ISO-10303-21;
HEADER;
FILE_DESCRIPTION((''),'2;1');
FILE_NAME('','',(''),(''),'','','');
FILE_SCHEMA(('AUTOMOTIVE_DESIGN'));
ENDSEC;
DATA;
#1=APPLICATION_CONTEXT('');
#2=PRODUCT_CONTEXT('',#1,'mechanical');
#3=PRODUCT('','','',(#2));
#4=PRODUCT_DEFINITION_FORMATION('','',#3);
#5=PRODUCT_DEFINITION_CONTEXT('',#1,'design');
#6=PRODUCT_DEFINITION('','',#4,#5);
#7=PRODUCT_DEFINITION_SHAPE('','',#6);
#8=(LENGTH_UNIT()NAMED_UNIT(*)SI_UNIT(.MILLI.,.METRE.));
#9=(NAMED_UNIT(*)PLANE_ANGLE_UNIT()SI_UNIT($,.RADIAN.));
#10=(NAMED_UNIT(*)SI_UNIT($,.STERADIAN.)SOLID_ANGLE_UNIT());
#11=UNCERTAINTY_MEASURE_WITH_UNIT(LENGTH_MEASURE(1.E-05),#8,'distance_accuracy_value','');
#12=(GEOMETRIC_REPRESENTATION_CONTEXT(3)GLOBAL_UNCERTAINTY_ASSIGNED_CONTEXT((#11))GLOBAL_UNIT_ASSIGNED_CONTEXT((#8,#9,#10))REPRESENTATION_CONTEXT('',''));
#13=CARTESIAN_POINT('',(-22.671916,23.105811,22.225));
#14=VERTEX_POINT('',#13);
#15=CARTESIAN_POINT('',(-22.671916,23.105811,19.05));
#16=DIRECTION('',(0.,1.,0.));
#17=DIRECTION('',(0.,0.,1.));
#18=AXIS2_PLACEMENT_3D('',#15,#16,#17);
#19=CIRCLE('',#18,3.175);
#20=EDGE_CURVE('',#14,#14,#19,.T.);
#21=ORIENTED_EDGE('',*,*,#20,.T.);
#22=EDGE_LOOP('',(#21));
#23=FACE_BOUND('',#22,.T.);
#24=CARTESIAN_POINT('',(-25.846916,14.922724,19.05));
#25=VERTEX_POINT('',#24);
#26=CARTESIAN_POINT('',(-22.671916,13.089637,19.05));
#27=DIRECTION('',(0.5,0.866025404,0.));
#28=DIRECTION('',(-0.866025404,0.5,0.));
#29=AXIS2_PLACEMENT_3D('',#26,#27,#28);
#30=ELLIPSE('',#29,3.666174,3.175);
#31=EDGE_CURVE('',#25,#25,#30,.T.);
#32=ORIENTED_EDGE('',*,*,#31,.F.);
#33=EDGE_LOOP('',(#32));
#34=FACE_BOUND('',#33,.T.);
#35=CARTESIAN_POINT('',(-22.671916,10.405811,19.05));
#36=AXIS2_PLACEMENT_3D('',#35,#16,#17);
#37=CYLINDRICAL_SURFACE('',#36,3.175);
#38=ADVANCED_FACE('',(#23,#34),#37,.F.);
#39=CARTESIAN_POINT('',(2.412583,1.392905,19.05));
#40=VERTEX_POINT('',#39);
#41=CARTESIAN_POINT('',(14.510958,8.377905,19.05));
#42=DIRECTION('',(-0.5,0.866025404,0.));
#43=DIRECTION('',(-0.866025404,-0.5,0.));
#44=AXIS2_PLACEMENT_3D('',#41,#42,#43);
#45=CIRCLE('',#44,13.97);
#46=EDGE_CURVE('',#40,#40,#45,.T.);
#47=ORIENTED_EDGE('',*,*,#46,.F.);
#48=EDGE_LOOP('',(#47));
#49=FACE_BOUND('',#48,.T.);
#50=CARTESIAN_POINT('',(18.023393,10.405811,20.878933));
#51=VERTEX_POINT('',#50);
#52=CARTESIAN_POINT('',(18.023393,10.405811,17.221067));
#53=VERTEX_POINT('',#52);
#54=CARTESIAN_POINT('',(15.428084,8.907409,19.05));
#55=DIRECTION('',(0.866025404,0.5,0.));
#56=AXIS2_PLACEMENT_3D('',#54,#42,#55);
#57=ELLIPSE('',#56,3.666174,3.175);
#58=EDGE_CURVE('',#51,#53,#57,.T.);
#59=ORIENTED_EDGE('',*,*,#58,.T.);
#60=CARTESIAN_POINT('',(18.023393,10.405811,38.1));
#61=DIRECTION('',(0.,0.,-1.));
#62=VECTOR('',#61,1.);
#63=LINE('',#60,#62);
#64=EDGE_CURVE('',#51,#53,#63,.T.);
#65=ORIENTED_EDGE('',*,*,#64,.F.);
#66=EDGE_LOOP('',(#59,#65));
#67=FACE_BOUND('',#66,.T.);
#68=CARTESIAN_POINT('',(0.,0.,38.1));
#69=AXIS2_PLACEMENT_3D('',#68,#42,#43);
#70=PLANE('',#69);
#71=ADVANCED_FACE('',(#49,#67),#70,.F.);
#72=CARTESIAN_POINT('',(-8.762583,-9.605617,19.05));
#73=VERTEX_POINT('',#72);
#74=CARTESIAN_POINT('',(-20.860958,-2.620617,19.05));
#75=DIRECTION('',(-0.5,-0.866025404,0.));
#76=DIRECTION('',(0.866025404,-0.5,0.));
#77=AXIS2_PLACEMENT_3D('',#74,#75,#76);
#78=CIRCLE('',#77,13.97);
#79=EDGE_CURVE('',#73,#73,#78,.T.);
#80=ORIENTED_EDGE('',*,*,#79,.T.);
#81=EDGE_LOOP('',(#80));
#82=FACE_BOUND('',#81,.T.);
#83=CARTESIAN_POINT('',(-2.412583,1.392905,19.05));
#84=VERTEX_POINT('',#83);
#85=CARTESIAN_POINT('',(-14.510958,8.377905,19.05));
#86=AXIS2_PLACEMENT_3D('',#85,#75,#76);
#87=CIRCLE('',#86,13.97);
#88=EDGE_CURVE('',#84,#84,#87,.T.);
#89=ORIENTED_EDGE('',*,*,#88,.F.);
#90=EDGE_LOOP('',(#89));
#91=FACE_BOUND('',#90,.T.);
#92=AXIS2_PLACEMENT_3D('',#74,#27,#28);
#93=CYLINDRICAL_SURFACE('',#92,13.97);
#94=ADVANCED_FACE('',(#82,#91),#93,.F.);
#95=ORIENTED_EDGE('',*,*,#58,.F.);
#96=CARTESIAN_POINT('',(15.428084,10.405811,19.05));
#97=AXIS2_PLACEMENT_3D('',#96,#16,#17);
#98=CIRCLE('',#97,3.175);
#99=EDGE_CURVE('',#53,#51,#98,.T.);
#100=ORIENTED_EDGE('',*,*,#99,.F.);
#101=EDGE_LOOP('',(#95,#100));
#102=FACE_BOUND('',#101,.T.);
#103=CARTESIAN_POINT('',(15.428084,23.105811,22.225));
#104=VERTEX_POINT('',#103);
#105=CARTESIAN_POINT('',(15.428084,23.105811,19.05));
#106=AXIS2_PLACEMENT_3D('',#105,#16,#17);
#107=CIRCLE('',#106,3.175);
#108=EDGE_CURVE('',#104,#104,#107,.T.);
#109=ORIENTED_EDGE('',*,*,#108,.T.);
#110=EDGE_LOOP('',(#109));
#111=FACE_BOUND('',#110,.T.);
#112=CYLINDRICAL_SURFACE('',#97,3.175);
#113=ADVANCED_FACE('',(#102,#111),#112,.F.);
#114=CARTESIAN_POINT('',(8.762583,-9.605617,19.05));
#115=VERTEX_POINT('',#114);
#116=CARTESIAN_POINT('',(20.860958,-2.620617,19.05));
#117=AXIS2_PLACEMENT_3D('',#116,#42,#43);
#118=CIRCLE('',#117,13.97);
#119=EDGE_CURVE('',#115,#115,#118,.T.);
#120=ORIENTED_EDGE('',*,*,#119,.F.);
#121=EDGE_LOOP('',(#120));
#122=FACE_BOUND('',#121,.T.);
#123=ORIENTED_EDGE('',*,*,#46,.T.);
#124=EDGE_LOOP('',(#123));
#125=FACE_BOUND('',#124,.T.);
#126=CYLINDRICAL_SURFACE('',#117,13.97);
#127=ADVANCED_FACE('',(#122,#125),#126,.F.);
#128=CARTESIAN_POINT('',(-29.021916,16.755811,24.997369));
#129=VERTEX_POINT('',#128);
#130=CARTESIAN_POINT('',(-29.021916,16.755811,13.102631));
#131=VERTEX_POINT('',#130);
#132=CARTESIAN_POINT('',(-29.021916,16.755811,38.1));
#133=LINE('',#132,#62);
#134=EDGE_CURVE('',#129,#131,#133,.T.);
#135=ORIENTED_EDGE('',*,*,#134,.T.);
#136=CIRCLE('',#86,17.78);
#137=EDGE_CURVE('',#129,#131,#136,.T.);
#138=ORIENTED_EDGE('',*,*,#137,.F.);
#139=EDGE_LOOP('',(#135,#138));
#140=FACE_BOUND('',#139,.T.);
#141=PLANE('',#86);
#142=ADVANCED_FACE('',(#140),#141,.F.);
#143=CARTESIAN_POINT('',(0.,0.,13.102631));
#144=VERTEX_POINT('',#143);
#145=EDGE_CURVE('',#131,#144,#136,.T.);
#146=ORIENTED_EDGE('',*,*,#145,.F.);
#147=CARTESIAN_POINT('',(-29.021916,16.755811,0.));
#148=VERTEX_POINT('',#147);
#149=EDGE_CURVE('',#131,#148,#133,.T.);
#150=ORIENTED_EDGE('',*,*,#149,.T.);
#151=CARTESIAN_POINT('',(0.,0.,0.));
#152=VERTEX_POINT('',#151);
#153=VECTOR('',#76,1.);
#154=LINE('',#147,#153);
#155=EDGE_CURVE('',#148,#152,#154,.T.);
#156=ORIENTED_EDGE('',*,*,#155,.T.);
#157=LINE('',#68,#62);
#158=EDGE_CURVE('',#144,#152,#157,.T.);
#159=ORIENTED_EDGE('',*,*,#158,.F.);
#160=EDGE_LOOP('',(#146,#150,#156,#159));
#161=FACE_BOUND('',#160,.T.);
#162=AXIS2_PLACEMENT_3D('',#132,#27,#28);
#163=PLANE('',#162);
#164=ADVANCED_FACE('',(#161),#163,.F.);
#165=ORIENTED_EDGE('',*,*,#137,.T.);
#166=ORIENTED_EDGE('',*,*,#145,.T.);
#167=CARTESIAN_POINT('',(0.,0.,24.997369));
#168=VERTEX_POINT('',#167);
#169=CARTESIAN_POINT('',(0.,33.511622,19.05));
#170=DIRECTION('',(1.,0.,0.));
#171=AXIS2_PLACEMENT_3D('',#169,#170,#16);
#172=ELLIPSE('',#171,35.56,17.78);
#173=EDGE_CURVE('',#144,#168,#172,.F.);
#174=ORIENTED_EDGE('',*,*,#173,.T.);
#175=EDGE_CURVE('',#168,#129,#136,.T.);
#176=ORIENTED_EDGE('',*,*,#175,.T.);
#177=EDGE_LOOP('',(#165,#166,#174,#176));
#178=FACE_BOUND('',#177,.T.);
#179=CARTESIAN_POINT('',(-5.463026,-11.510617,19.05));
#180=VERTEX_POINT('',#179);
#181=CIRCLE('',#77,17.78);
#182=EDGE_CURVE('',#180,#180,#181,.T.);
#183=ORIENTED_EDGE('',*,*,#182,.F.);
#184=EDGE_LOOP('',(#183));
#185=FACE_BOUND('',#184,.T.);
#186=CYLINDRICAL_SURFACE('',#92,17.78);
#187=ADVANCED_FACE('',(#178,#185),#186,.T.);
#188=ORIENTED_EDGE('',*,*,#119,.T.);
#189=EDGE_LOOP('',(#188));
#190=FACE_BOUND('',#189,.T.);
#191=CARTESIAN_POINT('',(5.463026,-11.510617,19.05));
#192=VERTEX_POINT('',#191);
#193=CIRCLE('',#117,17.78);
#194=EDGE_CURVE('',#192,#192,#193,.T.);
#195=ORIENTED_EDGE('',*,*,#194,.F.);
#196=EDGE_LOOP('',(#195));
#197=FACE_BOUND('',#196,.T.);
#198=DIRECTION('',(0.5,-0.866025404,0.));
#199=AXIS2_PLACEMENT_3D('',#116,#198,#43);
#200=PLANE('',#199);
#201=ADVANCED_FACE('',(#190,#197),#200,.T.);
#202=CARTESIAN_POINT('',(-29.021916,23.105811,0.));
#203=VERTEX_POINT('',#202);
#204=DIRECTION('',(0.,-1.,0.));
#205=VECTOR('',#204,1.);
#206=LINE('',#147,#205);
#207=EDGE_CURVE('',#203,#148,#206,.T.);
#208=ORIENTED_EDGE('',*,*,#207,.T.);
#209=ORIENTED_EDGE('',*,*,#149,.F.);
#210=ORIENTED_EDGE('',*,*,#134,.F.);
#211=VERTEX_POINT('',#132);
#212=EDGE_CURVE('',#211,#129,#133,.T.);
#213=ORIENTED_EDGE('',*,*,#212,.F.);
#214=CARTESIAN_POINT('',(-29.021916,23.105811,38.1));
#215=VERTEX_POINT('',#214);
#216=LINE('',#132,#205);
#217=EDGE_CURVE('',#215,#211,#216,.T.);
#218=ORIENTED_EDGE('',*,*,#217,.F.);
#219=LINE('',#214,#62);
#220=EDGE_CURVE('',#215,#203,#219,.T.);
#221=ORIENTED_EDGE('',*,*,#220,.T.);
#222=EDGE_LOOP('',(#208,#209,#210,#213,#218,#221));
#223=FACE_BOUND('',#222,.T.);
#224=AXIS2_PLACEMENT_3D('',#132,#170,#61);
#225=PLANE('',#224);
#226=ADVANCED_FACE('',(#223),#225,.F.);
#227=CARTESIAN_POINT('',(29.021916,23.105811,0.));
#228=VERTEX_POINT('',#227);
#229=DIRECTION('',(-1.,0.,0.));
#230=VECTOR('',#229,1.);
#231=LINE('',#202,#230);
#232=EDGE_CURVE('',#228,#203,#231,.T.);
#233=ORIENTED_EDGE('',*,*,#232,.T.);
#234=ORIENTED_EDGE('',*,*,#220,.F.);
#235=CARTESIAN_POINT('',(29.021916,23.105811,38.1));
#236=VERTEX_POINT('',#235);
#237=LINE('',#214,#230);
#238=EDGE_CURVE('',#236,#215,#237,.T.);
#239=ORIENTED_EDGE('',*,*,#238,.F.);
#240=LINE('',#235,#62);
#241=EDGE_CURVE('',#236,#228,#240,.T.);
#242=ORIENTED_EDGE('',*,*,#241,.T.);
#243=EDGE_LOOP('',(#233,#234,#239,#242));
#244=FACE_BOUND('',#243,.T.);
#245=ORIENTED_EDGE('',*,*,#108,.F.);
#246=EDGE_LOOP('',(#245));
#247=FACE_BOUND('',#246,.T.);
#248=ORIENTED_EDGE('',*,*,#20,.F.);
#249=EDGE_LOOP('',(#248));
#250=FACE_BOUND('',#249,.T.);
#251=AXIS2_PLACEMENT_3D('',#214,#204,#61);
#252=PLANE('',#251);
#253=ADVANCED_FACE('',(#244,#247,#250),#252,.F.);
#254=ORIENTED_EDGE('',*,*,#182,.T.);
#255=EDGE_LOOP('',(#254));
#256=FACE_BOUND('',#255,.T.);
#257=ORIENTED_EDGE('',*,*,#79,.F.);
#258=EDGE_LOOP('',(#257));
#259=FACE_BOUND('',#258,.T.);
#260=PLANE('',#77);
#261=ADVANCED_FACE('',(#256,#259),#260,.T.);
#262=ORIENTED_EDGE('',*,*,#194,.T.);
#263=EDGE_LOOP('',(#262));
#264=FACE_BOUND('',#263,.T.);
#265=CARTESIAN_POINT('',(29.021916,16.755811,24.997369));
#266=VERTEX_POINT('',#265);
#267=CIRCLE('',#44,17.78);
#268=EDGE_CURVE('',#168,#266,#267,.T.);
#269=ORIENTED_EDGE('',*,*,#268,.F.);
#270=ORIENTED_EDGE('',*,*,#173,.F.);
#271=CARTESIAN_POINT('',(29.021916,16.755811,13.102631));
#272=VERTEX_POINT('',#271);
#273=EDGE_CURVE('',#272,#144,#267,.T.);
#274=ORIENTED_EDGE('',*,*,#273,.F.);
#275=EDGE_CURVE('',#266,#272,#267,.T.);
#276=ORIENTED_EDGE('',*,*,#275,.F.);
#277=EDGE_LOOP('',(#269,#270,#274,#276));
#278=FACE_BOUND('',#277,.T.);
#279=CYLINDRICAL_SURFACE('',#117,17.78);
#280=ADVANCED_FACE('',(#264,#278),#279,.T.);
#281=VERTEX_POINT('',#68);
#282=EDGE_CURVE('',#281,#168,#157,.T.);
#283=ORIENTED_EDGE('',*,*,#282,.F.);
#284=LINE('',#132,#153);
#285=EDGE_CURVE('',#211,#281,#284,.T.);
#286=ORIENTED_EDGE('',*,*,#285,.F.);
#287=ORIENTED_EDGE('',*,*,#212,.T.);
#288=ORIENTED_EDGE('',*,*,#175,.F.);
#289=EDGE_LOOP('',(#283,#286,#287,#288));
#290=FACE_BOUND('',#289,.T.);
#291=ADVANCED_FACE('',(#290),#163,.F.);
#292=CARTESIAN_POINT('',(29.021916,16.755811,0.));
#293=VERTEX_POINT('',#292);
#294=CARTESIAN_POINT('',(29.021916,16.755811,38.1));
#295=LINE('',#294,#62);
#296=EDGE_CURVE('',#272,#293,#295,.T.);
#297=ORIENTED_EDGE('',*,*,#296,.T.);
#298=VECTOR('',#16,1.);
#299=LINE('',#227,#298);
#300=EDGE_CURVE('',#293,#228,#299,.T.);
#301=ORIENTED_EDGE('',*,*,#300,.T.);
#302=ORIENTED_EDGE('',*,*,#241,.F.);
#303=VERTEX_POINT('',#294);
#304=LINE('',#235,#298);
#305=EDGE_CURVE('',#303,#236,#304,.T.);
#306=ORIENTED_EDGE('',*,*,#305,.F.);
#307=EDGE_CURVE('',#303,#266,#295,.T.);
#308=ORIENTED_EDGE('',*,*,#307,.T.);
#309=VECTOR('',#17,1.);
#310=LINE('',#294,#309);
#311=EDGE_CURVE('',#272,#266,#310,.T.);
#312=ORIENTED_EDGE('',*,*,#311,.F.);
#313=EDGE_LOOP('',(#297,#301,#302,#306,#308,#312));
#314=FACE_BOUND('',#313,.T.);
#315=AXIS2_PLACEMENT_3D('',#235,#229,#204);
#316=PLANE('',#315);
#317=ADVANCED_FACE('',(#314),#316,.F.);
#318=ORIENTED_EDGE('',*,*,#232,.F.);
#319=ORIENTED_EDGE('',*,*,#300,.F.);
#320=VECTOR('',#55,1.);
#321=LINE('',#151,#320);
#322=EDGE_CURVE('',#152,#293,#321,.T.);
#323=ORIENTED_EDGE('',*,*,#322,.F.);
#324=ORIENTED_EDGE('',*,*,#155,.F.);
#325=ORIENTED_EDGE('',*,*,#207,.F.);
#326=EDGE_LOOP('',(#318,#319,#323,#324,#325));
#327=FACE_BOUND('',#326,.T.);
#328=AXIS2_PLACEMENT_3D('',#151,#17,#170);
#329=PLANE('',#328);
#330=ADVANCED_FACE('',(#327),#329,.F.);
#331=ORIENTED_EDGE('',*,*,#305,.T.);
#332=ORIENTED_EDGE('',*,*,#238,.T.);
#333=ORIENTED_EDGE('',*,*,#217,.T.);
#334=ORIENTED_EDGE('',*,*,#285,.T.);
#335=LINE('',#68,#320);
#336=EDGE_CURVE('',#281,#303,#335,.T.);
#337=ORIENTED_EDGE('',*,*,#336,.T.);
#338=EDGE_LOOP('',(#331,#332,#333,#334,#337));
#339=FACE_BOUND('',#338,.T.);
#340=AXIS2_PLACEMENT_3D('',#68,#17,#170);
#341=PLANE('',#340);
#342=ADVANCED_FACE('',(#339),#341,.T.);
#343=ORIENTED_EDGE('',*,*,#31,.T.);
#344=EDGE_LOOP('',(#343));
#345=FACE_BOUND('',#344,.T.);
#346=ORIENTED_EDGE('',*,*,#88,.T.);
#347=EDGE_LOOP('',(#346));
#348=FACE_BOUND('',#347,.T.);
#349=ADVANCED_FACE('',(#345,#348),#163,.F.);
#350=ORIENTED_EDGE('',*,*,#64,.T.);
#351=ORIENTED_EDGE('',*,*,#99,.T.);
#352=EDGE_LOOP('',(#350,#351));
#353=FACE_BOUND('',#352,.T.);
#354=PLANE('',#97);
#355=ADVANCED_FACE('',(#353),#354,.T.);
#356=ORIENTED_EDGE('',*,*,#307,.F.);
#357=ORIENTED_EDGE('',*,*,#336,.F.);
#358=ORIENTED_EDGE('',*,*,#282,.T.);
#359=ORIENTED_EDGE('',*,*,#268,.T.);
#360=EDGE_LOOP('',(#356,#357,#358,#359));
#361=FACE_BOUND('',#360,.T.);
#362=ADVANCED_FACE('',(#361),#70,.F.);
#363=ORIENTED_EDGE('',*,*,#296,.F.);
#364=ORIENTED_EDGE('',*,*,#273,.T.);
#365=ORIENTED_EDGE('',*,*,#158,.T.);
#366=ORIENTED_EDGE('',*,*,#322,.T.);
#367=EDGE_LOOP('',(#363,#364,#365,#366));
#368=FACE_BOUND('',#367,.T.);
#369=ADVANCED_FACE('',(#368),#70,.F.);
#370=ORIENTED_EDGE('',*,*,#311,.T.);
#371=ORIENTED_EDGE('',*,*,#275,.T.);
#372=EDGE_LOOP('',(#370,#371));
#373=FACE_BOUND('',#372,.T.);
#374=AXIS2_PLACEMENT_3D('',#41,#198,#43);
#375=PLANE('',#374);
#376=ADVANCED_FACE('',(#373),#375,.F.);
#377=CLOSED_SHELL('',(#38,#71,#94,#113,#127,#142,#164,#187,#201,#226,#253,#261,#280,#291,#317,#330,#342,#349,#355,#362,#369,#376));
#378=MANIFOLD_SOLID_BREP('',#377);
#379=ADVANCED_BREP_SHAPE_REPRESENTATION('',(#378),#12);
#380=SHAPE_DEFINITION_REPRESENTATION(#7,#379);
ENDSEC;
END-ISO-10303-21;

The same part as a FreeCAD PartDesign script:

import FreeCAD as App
import Part
import Sketcher
Q = App.Units.Quantity

doc = App.newDocument("Part")
body = doc.addObject("PartDesign::Body", "Body")

# Sketch on XY plane
sketch1 = body.newObject("Sketcher::SketchObject", "Sketch")
sketch1.AttachmentSupport = (doc.getObject("XY_Plane"), [""])
sketch1.MapMode = "FlatFace"
sketch1.addGeometry([
    Part.LineSegment(App.Vector(-29, 23, 0), App.Vector(-29, 17, 0)),  # 0
    Part.LineSegment(App.Vector(-29, 17, 0), App.Vector(0, 0, 0)),  # 1
    Part.LineSegment(App.Vector(0, 0, 0), App.Vector(29, 17, 0)),  # 2
    Part.LineSegment(App.Vector(29, 17, 0), App.Vector(29, 23, 0)),  # 3
    Part.LineSegment(App.Vector(29, 23, 0), App.Vector(-29, 23, 0)),  # 4
], False)
sketch1.addConstraint([
    Sketcher.Constraint("Coincident", 0, 2, 1, 1),
    Sketcher.Constraint("Coincident", 1, 2, 2, 1),
    Sketcher.Constraint("Coincident", 2, 2, 3, 1),
    Sketcher.Constraint("Coincident", 3, 2, 4, 1),
    Sketcher.Constraint("Coincident", 4, 2, 0, 1),
    Sketcher.Constraint("Vertical", 0),
    Sketcher.Constraint("Vertical", 3),
    Sketcher.Constraint("Horizontal", 4),
    Sketcher.Constraint("Coincident", 1, 2, -1, 1),
    Sketcher.Constraint("Symmetric", 0, 2, 2, 2, -2),
    Sketcher.Constraint("Angle", 1, Q("-30 deg")),
    Sketcher.Constraint("DistanceY", 0, 2, 0, 1, Q("0.25 in")),
    Sketcher.Constraint("DistanceX", 4, 2, 4, 1, Q("58.043832 mm")),
])
pad1 = body.newObject("PartDesign::Pad", "Pad")
pad1.Profile = sketch1
pad1.Length = Q("1.5 in")

# Sketch on an angled plane
sketch2 = body.newObject("Sketcher::SketchObject", "Sketch001")
sketch2.Placement = App.Placement(App.Vector(0, 0, 0), App.Rotation(App.Vector(0.866025404, -0.5, 0), App.Vector(0, 0, 1), App.Vector(-0.5, -0.866025404, 0), "ZXY"))
sketch2.addGeometry([
    Part.Circle(App.Vector(-17, 19, 0), App.Vector(0, 0, 1), 18),
    Part.Circle(App.Vector(-17, 19, 0), App.Vector(0, 0, 1), 14),
], False)
sketch2.addConstraint([
    Sketcher.Constraint("Coincident", 1, 3, 0, 3),
    Sketcher.Constraint("Diameter", 0, Q("1.4 in")),
    Sketcher.Constraint("Diameter", 1, Q("1.1 in")),
    Sketcher.Constraint("DistanceY", -1, 1, 0, 3, Q("0.75 in")),
    Sketcher.Constraint("DistanceX", 0, 3, -1, 1, Q("16.755811 mm")),
])
pad2 = body.newObject("PartDesign::Pad", "Pad001")
pad2.Profile = sketch2
pad2.Length = Q("0.5 in")
doc.recompute()

mirrored = body.newObject("PartDesign::Mirrored", "Mirrored")
mirrored.Originals = [pad2]
mirrored.MirrorPlane = (doc.getObject("YZ_Plane"), [""])
body.Tip = mirrored

# Sketch on XZ plane
sketch3 = body.newObject("Sketcher::SketchObject", "Sketch002")
sketch3.AttachmentSupport = (doc.getObject("XZ_Plane"), [""])
sketch3.MapMode = "FlatFace"
sketch3.AttachmentOffset = App.Placement(App.Vector(0, 0, -23.105811), App.Rotation())
sketch3.addGeometry([
    Part.Circle(App.Vector(-22.7, 19.1, 0), App.Vector(0, 0, 1), 3.2),
    Part.Circle(App.Vector(15.4, 19.1, 0), App.Vector(0, 0, 1), 3.2),
], False)
sketch3.addConstraint([
    Sketcher.Constraint("Equal", 0, 1),
    Sketcher.Constraint("Horizontal", 0, 3, 1, 3),
    Sketcher.Constraint("Diameter", 0, Q("0.25 in")),
    Sketcher.Constraint("DistanceX", 0, 3, 1, 3, Q("1.5 in")),
    Sketcher.Constraint("DistanceY", -1, 1, 0, 3, Q("0.75 in")),
    Sketcher.Constraint("DistanceX", 0, 3, -1, 1, Q("22.671916 mm")),
])
pocket1 = body.newObject("PartDesign::Pocket", "Pocket")
pocket1.Profile = sketch3
pocket1.Length = Q("0.5 in")
pocket1.Reversed = True

doc.recompute()
